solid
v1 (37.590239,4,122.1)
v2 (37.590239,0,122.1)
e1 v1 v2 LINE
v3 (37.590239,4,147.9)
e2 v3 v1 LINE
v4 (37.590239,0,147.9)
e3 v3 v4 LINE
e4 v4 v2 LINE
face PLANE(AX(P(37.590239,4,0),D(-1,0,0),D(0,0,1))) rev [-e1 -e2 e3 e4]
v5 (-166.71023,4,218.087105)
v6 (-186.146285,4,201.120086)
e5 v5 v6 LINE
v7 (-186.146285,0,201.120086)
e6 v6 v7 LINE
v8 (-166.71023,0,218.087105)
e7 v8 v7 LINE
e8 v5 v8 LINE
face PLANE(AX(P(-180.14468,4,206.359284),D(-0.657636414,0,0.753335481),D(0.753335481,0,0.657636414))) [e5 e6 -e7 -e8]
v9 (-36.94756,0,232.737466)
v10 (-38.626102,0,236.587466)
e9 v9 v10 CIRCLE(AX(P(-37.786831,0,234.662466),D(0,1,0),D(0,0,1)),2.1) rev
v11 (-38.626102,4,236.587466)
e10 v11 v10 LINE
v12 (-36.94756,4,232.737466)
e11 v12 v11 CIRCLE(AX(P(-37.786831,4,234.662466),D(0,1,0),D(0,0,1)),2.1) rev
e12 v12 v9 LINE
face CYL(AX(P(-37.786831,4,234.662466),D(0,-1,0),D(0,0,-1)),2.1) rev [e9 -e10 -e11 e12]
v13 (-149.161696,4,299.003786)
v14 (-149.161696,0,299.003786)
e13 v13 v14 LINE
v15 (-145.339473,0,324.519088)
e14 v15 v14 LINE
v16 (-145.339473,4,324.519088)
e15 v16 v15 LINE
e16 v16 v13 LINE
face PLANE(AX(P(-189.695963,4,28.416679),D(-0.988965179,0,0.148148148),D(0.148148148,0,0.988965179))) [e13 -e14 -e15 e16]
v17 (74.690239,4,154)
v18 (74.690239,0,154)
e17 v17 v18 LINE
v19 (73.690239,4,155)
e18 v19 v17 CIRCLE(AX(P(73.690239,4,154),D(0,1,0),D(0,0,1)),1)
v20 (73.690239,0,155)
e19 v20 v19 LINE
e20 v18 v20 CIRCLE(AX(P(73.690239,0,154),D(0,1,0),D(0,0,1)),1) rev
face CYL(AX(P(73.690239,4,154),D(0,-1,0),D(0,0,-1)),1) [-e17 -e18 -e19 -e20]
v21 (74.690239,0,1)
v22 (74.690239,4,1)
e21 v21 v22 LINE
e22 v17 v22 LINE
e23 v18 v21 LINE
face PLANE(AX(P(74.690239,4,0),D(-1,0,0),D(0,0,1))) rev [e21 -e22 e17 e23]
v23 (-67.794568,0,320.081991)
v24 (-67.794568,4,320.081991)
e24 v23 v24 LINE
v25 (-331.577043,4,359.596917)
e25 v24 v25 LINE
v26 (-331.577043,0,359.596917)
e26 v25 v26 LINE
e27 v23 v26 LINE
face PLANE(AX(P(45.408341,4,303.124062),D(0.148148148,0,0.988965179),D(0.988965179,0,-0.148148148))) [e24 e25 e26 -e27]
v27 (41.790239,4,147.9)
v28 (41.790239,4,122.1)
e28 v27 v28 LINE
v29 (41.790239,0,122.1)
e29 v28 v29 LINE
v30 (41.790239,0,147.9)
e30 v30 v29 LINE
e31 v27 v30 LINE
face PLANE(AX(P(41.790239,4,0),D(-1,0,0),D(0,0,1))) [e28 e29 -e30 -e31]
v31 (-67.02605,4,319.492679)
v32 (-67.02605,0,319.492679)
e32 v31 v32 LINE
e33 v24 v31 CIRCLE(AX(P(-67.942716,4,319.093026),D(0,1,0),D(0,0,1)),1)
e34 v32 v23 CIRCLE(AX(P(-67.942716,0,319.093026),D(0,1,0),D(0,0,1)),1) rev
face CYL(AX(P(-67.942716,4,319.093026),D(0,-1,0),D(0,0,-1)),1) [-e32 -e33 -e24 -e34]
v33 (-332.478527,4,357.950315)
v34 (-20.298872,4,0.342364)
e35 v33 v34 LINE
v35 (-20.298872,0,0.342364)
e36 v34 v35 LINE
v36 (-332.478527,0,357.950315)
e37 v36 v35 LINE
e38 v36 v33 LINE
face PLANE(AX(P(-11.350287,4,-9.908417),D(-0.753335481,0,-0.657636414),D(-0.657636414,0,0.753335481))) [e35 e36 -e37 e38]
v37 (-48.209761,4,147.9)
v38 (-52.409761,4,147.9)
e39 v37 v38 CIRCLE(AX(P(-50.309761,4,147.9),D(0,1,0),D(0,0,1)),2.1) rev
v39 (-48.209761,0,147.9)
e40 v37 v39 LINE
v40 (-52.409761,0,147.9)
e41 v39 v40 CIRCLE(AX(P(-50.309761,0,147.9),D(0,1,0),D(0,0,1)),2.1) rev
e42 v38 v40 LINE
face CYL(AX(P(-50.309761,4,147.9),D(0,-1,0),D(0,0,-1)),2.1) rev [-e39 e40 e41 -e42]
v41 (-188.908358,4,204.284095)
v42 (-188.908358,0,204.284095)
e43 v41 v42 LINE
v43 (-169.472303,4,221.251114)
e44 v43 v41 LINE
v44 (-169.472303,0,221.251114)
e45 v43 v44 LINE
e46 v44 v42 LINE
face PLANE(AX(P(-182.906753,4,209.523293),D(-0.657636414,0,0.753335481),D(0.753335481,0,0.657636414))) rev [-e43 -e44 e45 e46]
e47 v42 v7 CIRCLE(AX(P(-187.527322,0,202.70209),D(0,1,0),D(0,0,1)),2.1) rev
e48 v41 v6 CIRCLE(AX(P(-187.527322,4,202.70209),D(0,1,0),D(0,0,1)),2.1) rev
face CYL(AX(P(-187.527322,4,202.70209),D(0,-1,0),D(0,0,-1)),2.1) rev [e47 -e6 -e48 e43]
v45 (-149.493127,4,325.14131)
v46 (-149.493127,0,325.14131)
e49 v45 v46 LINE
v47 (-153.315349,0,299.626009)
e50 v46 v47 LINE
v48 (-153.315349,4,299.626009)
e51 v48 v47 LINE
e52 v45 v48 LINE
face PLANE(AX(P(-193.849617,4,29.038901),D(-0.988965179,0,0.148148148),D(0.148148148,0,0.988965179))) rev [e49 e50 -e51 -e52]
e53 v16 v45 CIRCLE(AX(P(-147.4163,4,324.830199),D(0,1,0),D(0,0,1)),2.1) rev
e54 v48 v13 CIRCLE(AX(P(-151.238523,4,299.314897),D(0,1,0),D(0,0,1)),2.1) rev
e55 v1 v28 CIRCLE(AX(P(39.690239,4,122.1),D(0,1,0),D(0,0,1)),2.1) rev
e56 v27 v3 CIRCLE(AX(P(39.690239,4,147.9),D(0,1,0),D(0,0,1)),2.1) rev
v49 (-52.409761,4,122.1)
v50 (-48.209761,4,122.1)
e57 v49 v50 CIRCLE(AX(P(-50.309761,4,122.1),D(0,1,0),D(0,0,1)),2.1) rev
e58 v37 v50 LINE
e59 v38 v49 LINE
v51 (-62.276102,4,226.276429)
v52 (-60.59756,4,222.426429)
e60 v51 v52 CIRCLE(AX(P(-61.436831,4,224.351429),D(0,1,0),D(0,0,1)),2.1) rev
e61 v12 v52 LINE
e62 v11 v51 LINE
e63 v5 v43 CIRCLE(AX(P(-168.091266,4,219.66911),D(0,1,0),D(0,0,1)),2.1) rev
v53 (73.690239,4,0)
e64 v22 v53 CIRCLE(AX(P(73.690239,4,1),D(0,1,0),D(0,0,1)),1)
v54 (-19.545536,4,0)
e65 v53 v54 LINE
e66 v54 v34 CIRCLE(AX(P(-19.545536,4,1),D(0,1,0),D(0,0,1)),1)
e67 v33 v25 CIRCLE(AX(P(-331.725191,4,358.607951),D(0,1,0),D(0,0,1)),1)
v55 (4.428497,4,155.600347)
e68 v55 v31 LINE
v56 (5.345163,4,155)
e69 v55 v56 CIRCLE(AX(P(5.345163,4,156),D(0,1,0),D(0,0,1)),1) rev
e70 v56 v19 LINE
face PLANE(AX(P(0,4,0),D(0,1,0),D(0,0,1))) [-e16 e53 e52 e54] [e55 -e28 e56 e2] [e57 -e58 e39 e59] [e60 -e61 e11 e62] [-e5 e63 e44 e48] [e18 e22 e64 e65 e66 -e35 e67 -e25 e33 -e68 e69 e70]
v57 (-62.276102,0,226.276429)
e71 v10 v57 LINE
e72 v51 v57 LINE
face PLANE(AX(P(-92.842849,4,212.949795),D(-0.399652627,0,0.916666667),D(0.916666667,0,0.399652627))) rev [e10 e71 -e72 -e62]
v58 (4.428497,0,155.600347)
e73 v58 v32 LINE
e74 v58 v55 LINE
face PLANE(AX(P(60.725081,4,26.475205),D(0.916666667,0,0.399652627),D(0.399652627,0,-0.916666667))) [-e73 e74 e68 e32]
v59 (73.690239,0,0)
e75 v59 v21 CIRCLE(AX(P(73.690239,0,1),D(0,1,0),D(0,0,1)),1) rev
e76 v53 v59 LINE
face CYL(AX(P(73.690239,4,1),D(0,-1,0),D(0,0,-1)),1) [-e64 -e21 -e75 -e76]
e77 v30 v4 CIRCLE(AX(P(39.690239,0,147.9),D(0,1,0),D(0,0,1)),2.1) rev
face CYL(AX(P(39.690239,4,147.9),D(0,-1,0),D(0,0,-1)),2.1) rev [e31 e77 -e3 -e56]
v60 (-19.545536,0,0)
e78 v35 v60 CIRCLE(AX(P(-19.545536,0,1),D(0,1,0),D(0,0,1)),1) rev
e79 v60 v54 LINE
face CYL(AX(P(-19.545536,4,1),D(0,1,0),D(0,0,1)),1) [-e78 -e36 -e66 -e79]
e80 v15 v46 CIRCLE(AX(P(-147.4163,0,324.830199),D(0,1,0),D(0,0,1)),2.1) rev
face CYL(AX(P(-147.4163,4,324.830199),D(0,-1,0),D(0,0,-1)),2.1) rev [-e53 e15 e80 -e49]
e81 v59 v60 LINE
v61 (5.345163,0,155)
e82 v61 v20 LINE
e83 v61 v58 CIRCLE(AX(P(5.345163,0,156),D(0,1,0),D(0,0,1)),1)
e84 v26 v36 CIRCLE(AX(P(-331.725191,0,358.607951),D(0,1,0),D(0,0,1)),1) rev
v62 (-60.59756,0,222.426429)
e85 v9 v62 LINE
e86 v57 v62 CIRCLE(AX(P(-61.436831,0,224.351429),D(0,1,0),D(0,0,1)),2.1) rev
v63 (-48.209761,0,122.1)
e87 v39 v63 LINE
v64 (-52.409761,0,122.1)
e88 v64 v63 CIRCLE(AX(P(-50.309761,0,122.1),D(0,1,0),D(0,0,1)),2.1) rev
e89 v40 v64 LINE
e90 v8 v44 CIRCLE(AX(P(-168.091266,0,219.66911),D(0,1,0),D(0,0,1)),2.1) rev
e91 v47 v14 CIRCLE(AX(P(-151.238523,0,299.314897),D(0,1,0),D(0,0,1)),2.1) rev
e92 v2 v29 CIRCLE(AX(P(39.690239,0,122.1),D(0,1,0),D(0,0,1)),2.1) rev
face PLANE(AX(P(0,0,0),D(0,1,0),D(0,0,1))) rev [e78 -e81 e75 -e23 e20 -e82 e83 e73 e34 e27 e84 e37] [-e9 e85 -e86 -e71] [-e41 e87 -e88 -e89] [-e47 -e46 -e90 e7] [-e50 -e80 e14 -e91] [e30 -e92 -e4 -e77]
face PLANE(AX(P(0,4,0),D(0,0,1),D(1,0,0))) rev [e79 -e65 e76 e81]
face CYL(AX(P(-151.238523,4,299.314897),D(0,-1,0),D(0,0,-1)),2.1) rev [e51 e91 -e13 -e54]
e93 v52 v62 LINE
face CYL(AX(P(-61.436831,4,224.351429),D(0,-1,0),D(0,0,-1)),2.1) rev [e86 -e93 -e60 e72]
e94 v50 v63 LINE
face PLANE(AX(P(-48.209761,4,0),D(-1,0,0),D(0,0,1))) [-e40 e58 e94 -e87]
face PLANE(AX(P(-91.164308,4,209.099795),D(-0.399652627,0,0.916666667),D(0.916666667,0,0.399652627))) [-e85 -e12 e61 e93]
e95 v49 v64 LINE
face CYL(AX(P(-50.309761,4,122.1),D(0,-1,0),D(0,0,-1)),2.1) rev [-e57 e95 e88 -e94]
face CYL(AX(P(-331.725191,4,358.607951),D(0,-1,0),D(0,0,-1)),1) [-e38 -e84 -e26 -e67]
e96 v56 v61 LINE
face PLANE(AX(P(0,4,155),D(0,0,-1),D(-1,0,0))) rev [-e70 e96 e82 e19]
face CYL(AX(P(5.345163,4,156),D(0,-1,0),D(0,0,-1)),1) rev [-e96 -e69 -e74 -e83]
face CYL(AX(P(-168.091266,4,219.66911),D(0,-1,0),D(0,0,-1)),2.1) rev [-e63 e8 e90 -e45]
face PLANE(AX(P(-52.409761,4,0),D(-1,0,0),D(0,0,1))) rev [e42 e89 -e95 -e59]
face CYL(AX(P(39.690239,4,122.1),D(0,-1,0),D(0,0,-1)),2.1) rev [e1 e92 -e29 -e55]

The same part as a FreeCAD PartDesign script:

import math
import FreeCAD as App
import Part
import Sketcher


def edges_at(feature, points):
    """Names of the edges that pass closest to the given points."""
    edges = feature.Shape.Edges
    near = lambda p: min(range(len(edges)), key=lambda i: edges[i].distToShape(Part.Vertex(*p))[0])
    return sorted({f"Edge{near(p) + 1}" for p in points})

doc = App.newDocument("Part")
params = doc.addObject("Spreadsheet::Sheet", "Params")
for row, (alias, value) in enumerate([
    ("sketch1_radius", "2.1 mm"),
    ("sketch1_width", "70 mm"),
    ("sketch1_height", "155 mm"),
    ("sketch1_length", "180 mm"),
    ("sketch1_length2", "270 mm"),
    ("pad1_length", "4 mm"),
    ("fillet_radius", "1 mm"),
], start=1):
    params.set(f"A{row}", alias)
    params.set(f"B{row}", "=" + value)
    params.setAlias(f"B{row}", alias)

body = doc.addObject("PartDesign::Body", "Body")

sketch1 = body.newObject("Sketcher::SketchObject", "Sketch")
sketch1.AttachmentSupport = (doc.getObject("XZ_Plane"), [""])
sketch1.MapMode = "FlatFace"
sketch1.addGeometry([
    Part.LineSegment(App.Vector(-67.2, 320, 0), App.Vector(4.7, 155, 0)),
    Part.LineSegment(App.Vector(4.7, 155, 0), App.Vector(74.7, 155, 0)),
    Part.LineSegment(App.Vector(74.7, 155, 0), App.Vector(74.7, 0, 0)),
    Part.LineSegment(App.Vector(74.7, 0, 0), App.Vector(-20, 0, 0)),
    Part.LineSegment(App.Vector(-20, 0, 0), App.Vector(-296.3, 316.6, 0)),
    Part.LineSegment(App.Vector(-296.3, 316.6, 0), App.Vector(-334.3, 360, 0)),
    Part.LineSegment(App.Vector(-334.3, 360, 0), App.Vector(-67.2, 320, 0)),
    Part.ArcOfCircle(Part.Circle(App.Vector(-168.1, 219.7, 0), App.Vector(0, 0, 1), 2.1), math.radians(-49), math.radians(131)),
    Part.LineSegment(App.Vector(-169.5, 221.3, 0), App.Vector(-188.9, 204.3, 0)),
    Part.ArcOfCircle(Part.Circle(App.Vector(-187.5, 202.7, 0), App.Vector(0, 0, 1), 2.1), math.radians(131), math.radians(311)),
    Part.LineSegment(App.Vector(-186.1, 201.1, 0), App.Vector(-166.7, 218.1, 0)),
    Part.ArcOfCircle(Part.Circle(App.Vector(-50.3, 147.9, 0), App.Vector(0, 0, 1), 2.1), math.radians(0), math.radians(180)),
    Part.LineSegment(App.Vector(-52.4, 147.9, 0), App.Vector(-52.4, 122.1, 0)),
    Part.ArcOfCircle(Part.Circle(App.Vector(-50.3, 122.1, 0), App.Vector(0, 0, 1), 2.1), math.radians(180), math.radians(360)),
    Part.LineSegment(App.Vector(-48.2, 122.1, 0), App.Vector(-48.2, 147.9, 0)),
    Part.ArcOfCircle(Part.Circle(App.Vector(39.7, 147.9, 0), App.Vector(0, 0, 1), 2.1), math.radians(0), math.radians(180)),
    Part.LineSegment(App.Vector(37.6, 147.9, 0), App.Vector(37.6, 122.1, 0)),
    Part.ArcOfCircle(Part.Circle(App.Vector(39.7, 122.1, 0), App.Vector(0, 0, 1), 2.1), math.radians(180), math.radians(360)),
    Part.LineSegment(App.Vector(41.8, 122.1, 0), App.Vector(41.8, 147.9, 0)),
    Part.ArcOfCircle(Part.Circle(App.Vector(-147.4, 324.8, 0), App.Vector(0, 0, 1), 2.1), math.radians(-9), math.radians(171)),
    Part.LineSegment(App.Vector(-149.5, 325.1, 0), App.Vector(-153.3, 299.6, 0)),
    Part.ArcOfCircle(Part.Circle(App.Vector(-151.2, 299.3, 0), App.Vector(0, 0, 1), 2.1), math.radians(171), math.radians(351)),
    Part.LineSegment(App.Vector(-149.2, 299, 0), App.Vector(-145.3, 324.5, 0)),
    Part.ArcOfCircle(Part.Circle(App.Vector(-37.8, 234.7, 0), App.Vector(0, 0, 1), 2.1), math.radians(-66), math.radians(114)),
    Part.LineSegment(App.Vector(-38.6, 236.6, 0), App.Vector(-62.3, 226.3, 0)),
    Part.ArcOfCircle(Part.Circle(App.Vector(-61.4, 224.4, 0), App.Vector(0, 0, 1), 2.1), math.radians(114), math.radians(294)),
    Part.LineSegment(App.Vector(-60.6, 222.4, 0), App.Vector(-36.9, 232.7, 0)),
], False)
sketch1.addConstraint([
    Sketcher.Constraint("Coincident", 0, 2, 1, 1),
    Sketcher.Constraint("Coincident", 1, 2, 2, 1),
    Sketcher.Constraint("Coincident", 2, 2, 3, 1),
    Sketcher.Constraint("Coincident", 3, 2, 4, 1),
    Sketcher.Constraint("Coincident", 4, 2, 5, 1),
    Sketcher.Constraint("Coincident", 5, 2, 6, 1),
    Sketcher.Constraint("Coincident", 6, 2, 0, 1),
    Sketcher.Constraint("Tangent", 7, 2, 8, 1),
    Sketcher.Constraint("Tangent", 8, 2, 9, 1),
    Sketcher.Constraint("Tangent", 9, 2, 10, 1),
    Sketcher.Constraint("Tangent", 10, 2, 7, 1),
    Sketcher.Constraint("Tangent", 11, 2, 12, 1),
    Sketcher.Constraint("Tangent", 12, 2, 13, 1),
    Sketcher.Constraint("Tangent", 13, 2, 14, 1),
    Sketcher.Constraint("Tangent", 14, 2, 11, 1),
    Sketcher.Constraint("Tangent", 15, 2, 16, 1),
    Sketcher.Constraint("Tangent", 16, 2, 17, 1),
    Sketcher.Constraint("Tangent", 17, 2, 18, 1),
    Sketcher.Constraint("Tangent", 18, 2, 15, 1),
    Sketcher.Constraint("Tangent", 19, 2, 20, 1),
    Sketcher.Constraint("Tangent", 20, 2, 21, 1),
    Sketcher.Constraint("Tangent", 21, 2, 22, 1),
    Sketcher.Constraint("Tangent", 22, 2, 19, 1),
    Sketcher.Constraint("Tangent", 23, 2, 24, 1),
    Sketcher.Constraint("Tangent", 24, 2, 25, 1),
    Sketcher.Constraint("Tangent", 25, 2, 26, 1),
    Sketcher.Constraint("Tangent", 26, 2, 23, 1),
    Sketcher.Constraint("Horizontal", 1),
    Sketcher.Constraint("Vertical", 2),
    Sketcher.Constraint("Horizontal", 3),
    Sketcher.Constraint("Vertical", 12),
    Sketcher.Constraint("Vertical", 14),
    Sketcher.Constraint("Vertical", 16),
    Sketcher.Constraint("Vertical", 18),
    Sketcher.Constraint("Equal", 7, 9),
    Sketcher.Constraint("Equal", 9, 11),
    Sketcher.Constraint("Equal", 13, 15),
    Sketcher.Constraint("Equal", 17, 19),
    Sketcher.Constraint("Equal", 19, 21),
    Sketcher.Constraint("Equal", 21, 23),
    Sketcher.Constraint("Equal", 23, 25),
    Sketcher.Constraint("PointOnObject", 2, 2, -1),
    Sketcher.Constraint("Parallel", 4, 5),
    Sketcher.Constraint("Perpendicular", 5, 8),
    Sketcher.Constraint("Perpendicular", 6, 20),
    Sketcher.Constraint("Perpendicular", 0, 24),
    Sketcher.Constraint("Horizontal", 11, 3, 15, 3),
    Sketcher.Constraint("Horizontal", 13, 3, 17, 3),
    Sketcher.Constraint("Equal", 10, 20),
    Sketcher.Constraint("Equal", 22, 24),
    Sketcher.Constraint("Radius", 7, 2.1),
    Sketcher.Constraint("DistanceX", 1, 1, 1, 2, 70.0),
    Sketcher.Constraint("DistanceY", 2, 2, 2, 1, 155.0),
    Sketcher.Constraint("Distance", 0, 180.0),
    Sketcher.Constraint("Distance", 6, 270.0),
    Sketcher.Constraint("DistanceY", 12, 2, 12, 1, 25.8),
    Sketcher.Constraint("DistanceX", 3, 2, -1, 1, 20.0),
    Sketcher.Constraint("DistanceY", -1, 1, 5, 2, 360.0),
    Sketcher.Constraint("DistanceY", -1, 1, 6, 2, 320.0),
    Sketcher.Constraint("DistanceX", 11, 3, 15, 3, 90.0),
    Sketcher.Constraint("DistanceX", 0, 2, 15, 3, 35.0),
    Sketcher.Constraint("Distance", 8, 25.8),
    Sketcher.Constraint("DistanceY", -1, 1, 11, 3, 147.9),
    Sketcher.Constraint("DistanceX", 3, 2, 3, 1, 94.690239),
    Sketcher.Constraint("DistanceX", 19, 3, -1, 1, 147.4163),
    Sketcher.Constraint("DistanceY", -1, 1, 19, 3, 324.830199),
    Sketcher.Constraint("DistanceX", 23, 2, -1, 1, 38.626102),
    Sketcher.Constraint("DistanceX", 9, 3, 21, 3, 36.288799),
    Sketcher.Constraint("DistanceY", 7, 3, 19, 2, 105.472201),
    Sketcher.Constraint("Distance", 4, 420.212879),
    Sketcher.Constraint("DistanceY", -1, 1, 25, 3, 224.351429),
])
sketch1.setExpression("Constraints[50]", "Params.sketch1_radius")
sketch1.setExpression("Constraints[51]", "Params.sketch1_width")
sketch1.setExpression("Constraints[52]", "Params.sketch1_height")
sketch1.setExpression("Constraints[53]", "Params.sketch1_length")
sketch1.setExpression("Constraints[54]", "Params.sketch1_length2")
pad1 = body.newObject("PartDesign::Pad", "Pad")
pad1.Profile = sketch1
pad1.setExpression("Length", "Params.pad1_length")
pad1.Reversed = True
doc.recompute()

fillet = body.newObject("PartDesign::Fillet", "Fillet")
fillet.Base = (pad1, edges_at(pad1, [
    (-20, 2, 0),
    (74.69, 2, 0),
    (74.69, 2, 155),
    (4.69, 2, 155),
    (-67.247, 2, 320),
    (-334.268, 2, 360),
]))
fillet.setExpression("Radius", "Params.fillet_radius")

doc.recompute()
